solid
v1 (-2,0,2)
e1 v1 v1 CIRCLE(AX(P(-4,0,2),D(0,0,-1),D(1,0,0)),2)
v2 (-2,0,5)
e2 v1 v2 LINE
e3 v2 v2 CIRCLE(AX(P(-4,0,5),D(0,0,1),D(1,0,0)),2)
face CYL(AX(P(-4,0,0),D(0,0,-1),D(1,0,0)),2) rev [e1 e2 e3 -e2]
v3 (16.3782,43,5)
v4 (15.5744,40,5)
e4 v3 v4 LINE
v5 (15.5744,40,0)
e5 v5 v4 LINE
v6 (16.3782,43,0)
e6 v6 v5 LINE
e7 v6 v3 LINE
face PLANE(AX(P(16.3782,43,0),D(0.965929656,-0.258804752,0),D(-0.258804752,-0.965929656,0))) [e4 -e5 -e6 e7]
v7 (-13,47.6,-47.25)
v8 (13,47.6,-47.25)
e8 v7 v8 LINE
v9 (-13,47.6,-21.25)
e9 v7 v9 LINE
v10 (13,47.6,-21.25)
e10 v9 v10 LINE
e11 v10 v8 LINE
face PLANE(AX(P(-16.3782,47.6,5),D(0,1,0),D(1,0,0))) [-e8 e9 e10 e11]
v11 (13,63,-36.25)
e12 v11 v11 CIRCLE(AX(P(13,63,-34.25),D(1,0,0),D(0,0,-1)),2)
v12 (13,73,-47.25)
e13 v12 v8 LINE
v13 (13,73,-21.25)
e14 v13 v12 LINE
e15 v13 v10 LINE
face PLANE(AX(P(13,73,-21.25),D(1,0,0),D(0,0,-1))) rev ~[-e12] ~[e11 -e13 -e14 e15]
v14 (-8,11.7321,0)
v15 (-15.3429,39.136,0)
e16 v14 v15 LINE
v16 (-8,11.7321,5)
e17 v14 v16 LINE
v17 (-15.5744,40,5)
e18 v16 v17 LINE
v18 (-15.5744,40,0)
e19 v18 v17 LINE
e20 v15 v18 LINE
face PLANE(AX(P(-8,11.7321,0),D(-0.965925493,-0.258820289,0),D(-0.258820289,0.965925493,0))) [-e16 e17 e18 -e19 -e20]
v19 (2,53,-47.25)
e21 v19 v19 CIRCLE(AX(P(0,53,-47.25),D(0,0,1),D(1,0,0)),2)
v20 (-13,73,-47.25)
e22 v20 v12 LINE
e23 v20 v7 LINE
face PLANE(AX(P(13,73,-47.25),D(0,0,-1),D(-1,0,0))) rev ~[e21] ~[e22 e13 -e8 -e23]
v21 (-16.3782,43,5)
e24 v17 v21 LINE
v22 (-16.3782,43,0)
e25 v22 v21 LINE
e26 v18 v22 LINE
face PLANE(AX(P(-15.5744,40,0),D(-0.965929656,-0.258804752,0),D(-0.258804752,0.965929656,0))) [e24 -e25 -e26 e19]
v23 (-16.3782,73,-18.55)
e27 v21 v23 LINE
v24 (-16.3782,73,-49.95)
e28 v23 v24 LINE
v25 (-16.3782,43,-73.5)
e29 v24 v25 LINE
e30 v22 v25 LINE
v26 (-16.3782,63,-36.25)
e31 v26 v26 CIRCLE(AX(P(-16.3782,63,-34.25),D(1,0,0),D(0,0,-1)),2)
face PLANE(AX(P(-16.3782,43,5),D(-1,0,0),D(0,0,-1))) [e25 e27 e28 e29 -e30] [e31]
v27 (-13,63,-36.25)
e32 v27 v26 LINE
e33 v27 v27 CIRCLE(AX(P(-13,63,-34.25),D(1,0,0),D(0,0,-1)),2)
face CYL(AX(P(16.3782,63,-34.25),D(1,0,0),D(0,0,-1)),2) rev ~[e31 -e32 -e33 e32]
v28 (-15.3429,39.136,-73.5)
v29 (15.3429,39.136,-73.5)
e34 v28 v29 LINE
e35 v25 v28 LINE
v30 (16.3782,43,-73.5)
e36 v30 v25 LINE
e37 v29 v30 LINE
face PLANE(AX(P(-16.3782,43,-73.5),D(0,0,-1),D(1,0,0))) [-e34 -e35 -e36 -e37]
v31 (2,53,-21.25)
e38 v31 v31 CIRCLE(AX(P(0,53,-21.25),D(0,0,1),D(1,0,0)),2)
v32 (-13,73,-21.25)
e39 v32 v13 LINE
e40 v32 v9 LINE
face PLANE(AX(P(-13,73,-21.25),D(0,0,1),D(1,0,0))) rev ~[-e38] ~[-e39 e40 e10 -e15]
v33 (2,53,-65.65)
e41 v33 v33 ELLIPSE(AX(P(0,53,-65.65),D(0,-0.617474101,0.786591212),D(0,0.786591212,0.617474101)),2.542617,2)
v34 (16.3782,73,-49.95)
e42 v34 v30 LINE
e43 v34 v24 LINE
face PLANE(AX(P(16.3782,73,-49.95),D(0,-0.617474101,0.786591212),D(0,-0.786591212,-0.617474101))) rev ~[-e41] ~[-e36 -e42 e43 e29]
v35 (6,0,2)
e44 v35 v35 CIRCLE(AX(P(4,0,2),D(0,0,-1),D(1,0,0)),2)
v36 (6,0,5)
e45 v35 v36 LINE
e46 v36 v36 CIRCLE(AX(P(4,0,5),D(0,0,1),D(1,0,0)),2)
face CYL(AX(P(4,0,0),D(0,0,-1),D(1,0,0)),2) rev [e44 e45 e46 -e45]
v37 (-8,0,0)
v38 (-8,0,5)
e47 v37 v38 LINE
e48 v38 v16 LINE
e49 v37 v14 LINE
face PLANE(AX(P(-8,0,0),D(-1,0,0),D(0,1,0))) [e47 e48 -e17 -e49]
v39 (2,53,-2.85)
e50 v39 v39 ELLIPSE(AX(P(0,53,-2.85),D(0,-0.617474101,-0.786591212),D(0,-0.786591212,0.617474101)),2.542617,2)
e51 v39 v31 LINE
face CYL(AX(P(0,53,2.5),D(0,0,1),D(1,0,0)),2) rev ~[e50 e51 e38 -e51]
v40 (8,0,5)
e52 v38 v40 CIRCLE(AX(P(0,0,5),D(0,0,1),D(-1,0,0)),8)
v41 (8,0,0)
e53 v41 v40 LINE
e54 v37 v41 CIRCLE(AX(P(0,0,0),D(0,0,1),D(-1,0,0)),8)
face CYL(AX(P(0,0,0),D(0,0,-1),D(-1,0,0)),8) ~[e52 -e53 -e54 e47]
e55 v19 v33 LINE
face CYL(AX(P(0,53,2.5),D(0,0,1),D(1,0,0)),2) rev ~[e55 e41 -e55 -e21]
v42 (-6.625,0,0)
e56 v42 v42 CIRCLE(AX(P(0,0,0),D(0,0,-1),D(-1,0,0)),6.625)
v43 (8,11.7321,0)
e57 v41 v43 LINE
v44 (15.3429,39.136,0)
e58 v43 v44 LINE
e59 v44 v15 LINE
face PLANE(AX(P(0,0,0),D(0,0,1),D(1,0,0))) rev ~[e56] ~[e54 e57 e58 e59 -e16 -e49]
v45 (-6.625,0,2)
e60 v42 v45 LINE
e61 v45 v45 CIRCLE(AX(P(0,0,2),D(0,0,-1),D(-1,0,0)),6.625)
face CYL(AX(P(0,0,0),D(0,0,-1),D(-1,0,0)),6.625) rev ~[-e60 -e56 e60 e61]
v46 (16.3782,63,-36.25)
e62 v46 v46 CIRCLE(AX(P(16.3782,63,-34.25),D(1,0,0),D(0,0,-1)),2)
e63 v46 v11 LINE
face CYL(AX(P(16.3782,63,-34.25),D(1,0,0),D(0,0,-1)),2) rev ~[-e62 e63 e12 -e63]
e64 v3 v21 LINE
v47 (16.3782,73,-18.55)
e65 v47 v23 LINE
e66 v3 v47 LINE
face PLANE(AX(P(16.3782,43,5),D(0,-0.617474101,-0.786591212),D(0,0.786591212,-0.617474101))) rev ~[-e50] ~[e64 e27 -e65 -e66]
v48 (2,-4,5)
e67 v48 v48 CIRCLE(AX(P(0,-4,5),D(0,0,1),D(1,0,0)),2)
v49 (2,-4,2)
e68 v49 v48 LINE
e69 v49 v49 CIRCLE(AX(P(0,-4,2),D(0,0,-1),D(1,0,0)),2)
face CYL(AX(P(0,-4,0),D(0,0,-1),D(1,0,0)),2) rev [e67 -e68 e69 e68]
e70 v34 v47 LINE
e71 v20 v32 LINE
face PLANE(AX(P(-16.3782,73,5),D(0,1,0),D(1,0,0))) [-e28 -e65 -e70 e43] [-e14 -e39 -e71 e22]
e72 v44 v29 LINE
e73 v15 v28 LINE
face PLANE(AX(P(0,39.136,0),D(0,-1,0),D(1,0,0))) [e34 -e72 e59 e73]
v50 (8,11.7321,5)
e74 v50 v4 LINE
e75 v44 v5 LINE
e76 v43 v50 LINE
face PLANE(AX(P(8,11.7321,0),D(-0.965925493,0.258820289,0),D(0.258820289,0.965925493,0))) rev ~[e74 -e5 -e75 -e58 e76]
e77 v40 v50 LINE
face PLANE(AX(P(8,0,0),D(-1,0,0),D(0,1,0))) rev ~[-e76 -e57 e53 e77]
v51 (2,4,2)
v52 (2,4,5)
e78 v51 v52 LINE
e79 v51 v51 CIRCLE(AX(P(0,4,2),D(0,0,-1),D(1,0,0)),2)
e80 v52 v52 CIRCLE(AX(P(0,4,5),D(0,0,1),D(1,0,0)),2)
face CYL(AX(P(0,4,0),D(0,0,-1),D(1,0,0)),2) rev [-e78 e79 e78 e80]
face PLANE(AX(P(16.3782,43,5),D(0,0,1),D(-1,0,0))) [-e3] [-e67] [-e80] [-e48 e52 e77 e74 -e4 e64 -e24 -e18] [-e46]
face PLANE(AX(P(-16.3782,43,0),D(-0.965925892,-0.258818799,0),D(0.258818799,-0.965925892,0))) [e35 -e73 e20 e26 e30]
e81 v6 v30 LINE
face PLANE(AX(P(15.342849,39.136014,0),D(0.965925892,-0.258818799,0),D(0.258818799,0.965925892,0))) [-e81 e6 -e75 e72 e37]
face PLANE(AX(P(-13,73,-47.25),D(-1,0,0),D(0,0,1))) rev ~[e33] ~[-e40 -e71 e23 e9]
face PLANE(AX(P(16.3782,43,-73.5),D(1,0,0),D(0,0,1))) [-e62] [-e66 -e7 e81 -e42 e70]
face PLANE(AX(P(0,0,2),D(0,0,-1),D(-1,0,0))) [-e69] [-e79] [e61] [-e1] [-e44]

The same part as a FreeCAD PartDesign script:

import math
import FreeCAD as App
import Part
import Sketcher

V = App.Vector
Q = App.Units.Quantity


def add_polygon(sketch, points):
    """Adds a closed chain of lines whose ends are joined by coincident constraints."""
    first, n = sketch.GeometryCount, len(points)
    for a, b in zip(points, points[1:] + points[:1]):
        sketch.addGeometry(Part.LineSegment(App.Vector(*a, 0), App.Vector(*b, 0)), False)
    for i in range(n):
        sketch.addConstraint(Sketcher.Constraint("Coincident", first + i, 2, first + (i + 1) % n, 1))

doc = App.newDocument("Part")
body = doc.addObject("PartDesign::Body", "Body")

sketch1 = doc.addObject("Sketcher::SketchObject", "Sketch")
body.addObject(sketch1)
sketch1.AttachmentSupport = (doc.XY_Plane, [""])
sketch1.MapMode = "FlatFace"
sketch1.addGeometry([
    Part.LineSegment(V(8, 0, 0), V(8, 11.7, 0)),
    Part.LineSegment(V(8, 11.7, 0), V(15.6, 40, 0)),
    Part.LineSegment(V(15.6, 40, 0), V(16.4, 43, 0)),
    Part.LineSegment(V(16.4, 43, 0), V(-16.4, 43, 0)),
    Part.LineSegment(V(-16.4, 43, 0), V(-15.6, 40, 0)),
    Part.LineSegment(V(-15.6, 40, 0), V(-8, 11.7, 0)),
    Part.LineSegment(V(-8, 11.7, 0), V(-8, 0, 0)),
    Part.ArcOfCircle(Part.Circle(V(0, 0, 0), V(0, 0, 1), 8), math.radians(180), math.radians(360)),
    Part.Circle(V(-4, 0, 0), V(0, 0, 1), 2),
    Part.Circle(V(0, -4, 0), V(0, 0, 1), 2),
    Part.Circle(V(4, 0, 0), V(0, 0, 1), 2),
    Part.Circle(V(0, 4, 0), V(0, 0, 1), 2),
], False)
sketch1.addConstraint([
    Sketcher.Constraint("Coincident", 0, 2, 1, 1),
    Sketcher.Constraint("Coincident", 1, 2, 2, 1),
    Sketcher.Constraint("Coincident", 2, 2, 3, 1),
    Sketcher.Constraint("Coincident", 3, 2, 4, 1),
    Sketcher.Constraint("Coincident", 4, 2, 5, 1),
    Sketcher.Constraint("Coincident", 5, 2, 6, 1),
    Sketcher.Constraint("Tangent", 6, 2, 7, 1),
    Sketcher.Constraint("Tangent", 7, 2, 0, 1),
    Sketcher.Constraint("Vertical", 0),
    Sketcher.Constraint("Horizontal", 3),
    Sketcher.Constraint("Vertical", 6),
    Sketcher.Constraint("Coincident", 7, 3, -1, 1),
    Sketcher.Constraint("Equal", 8, 9),
    Sketcher.Constraint("Equal", 9, 10),
    Sketcher.Constraint("Equal", 10, 11),
    Sketcher.Constraint("Symmetric", 8, 3, 10, 3, -1, 1),
    Sketcher.Constraint("Symmetric", 9, 3, 11, 3, -1, 1),
    Sketcher.Constraint("Symmetric", 1, 2, 4, 2, -2),
    Sketcher.Constraint("PointOnObject", 8, 3, -1),
    Sketcher.Constraint("PointOnObject", 9, 3, -2),
    Sketcher.Constraint("Parallel", 1, 2),
    Sketcher.Constraint("Parallel", 4, 5),
    Sketcher.Constraint("Horizontal", 0, 2, 5, 2),
    Sketcher.Constraint("Diameter", 8, Q("4 mm")),
    Sketcher.Constraint("DistanceX", 8, 3, -1, 1, Q("4 mm")),
    Sketcher.Constraint("DistanceY", 9, 3, -1, 1, Q("4 mm")),
    Sketcher.Constraint("Radius", 7, Q("8 mm")),
    Sketcher.Constraint("Angle", 1, Q("75 deg")),
    Sketcher.Constraint("DistanceY", -1, 1, 1, 2, Q("40 mm")),
    Sketcher.Constraint("DistanceY", -1, 1, 2, 2, Q("43 mm")),
    Sketcher.Constraint("DistanceY", 0, 1, 0, 2, Q("11.732 mm")),
])
pad1 = doc.addObject("PartDesign::Pad", "Pad")
body.addObject(pad1)
pad1.Profile = sketch1
pad1.Length = 5

sketch2 = doc.addObject("Sketcher::SketchObject", "Sketch001")
body.addObject(sketch2)
sketch2.AttachmentSupport = (doc.XY_Plane, [""])
sketch2.MapMode = "FlatFace"
sketch2.addGeometry(Part.Circle(V(0, 0, 0), V(0, 0, 1), 7), False)
sketch2.addConstraint([
    Sketcher.Constraint("Coincident", 0, 3, -1, 1),
    Sketcher.Constraint("Diameter", 0, Q("13.25 mm")),
])
pocket1 = doc.addObject("PartDesign::Pocket", "Pocket")
body.addObject(pocket1)
pocket1.Profile = sketch2
pocket1.Length = 2
pocket1.Reversed = True

sketch3 = doc.addObject("Sketcher::SketchObject", "Sketch002")
body.addObject(sketch3)
sketch3.AttachmentSupport = (doc.XY_Plane, [""])
sketch3.MapMode = "FlatFace"
add_polygon(sketch3, [(16.4, 43), (15.3, 39.1), (-15.3, 39.1), (-16.4, 43)])
sketch3.addConstraint([
    Sketcher.Constraint("Horizontal", 1),
    Sketcher.Constraint("Horizontal", 3),
    Sketcher.Constraint("Equal", 0, 2),
    Sketcher.Constraint("Angle", 0, Q("-105 deg")),
    Sketcher.Constraint("DistanceY", -1, 1, 2, 2, Q("43 mm")),
    Sketcher.Constraint("DistanceX", 1, 2, 1, 1, Q("30.6858 mm")),
    Sketcher.Constraint("DistanceX", 3, 1, 3, 2, Q("32.7564 mm")),
    Sketcher.Constraint("DistanceX", 1, 2, -1, 1, Q("15.343 mm")),
])
pad2 = doc.addObject("PartDesign::Pad", "Pad001")
body.addObject(pad2)
pad2.Profile = sketch3
pad2.Length = 73.5
pad2.Reversed = True

sketch4 = doc.addObject("Sketcher::SketchObject", "Sketch003")
body.addObject(sketch4)
sketch4.AttachmentSupport = (doc.XZ_Plane, [""])
sketch4.MapMode = "FlatFace"
sketch4.AttachmentOffset = App.Placement(V(0, 0, -43), App.Rotation())
add_polygon(sketch4, [(16, -74), (-16, -74), (-16, 5), (16, 5)])
sketch4.addConstraint([
    Sketcher.Constraint("Horizontal", 0),
    Sketcher.Constraint("Vertical", 1),
    Sketcher.Constraint("Horizontal", 2),
    Sketcher.Constraint("Vertical", 3),
    Sketcher.Constraint("DistanceY", 1, 1, 1, 2, Q("78.5 mm")),
    Sketcher.Constraint("DistanceY", -1, 1, 1, 2, Q("5 mm")),
    Sketcher.Constraint("DistanceX", 0, 2, 0, 1, Q("32.7564 mm")),
    Sketcher.Constraint("DistanceX", 0, 2, -1, 1, Q("16.3782 mm")),
])
pad3 = doc.addObject("PartDesign::Pad", "Pad002")
body.addObject(pad3)
pad3.Profile = sketch4
pad3.Length = 30
pad3.Reversed = True

sketch5 = doc.addObject("Sketcher::SketchObject", "Sketch004")
body.addObject(sketch5)
sketch5.AttachmentSupport = (doc.YZ_Plane, [""])
sketch5.MapMode = "FlatFace"
sketch5.AttachmentOffset = App.Placement(V(0, 0, 16.3782), App.Rotation())
add_polygon(sketch5, [(73, -74), (73, -50), (43, -74)])
add_polygon(sketch5, [(73, -19), (73, 5), (43, 5)])
sketch5.addConstraint([
    Sketcher.Constraint("Vertical", 0),
    Sketcher.Constraint("Horizontal", 2),
    Sketcher.Constraint("Vertical", 3),
    Sketcher.Constraint("Horizontal", 4),
    Sketcher.Constraint("Vertical", 2, 2, 3, 2),
    Sketcher.Constraint("Vertical", 1, 2, 4, 2),
    Sketcher.Constraint("Equal", 0, 3),
    Sketcher.Constraint("DistanceX", 2, 1, 2, 2, Q("30 mm")),
    Sketcher.Constraint("DistanceX", -1, 1, 0, 2, Q("73 mm")),
    Sketcher.Constraint("DistanceY", -1, 1, 3, 2, Q("5 mm")),
    Sketcher.Constraint("DistanceY", 0, 1, 0, 2, Q("23.55 mm")),
    Sketcher.Constraint("DistanceY", 1, 2, -1, 1, Q("73.5 mm")),
])
pocket2 = doc.addObject("PartDesign::Pocket", "Pocket001")
body.addObject(pocket2)
pocket2.Profile = sketch5
pocket2.Length = 32.7564

sketch6 = doc.addObject("Sketcher::SketchObject", "Sketch005")
body.addObject(sketch6)
sketch6.AttachmentSupport = (doc.XZ_Plane, [""])
sketch6.MapMode = "FlatFace"
sketch6.AttachmentOffset = App.Placement(V(0, 0, -73), App.Rotation())
add_polygon(sketch6, [(13, -47), (-13, -47), (-13, -21), (13, -21)])
sketch6.addConstraint([
    Sketcher.Constraint("Horizontal", 0),
    Sketcher.Constraint("Vertical", 1),
    Sketcher.Constraint("Horizontal", 2),
    Sketcher.Constraint("Vertical", 3),
    Sketcher.Constraint("Equal", 2, 1),
    Sketcher.Constraint("DistanceX", 0, 2, 0, 1, Q("26 mm")),
    Sketcher.Constraint("DistanceX", 0, 2, -1, 1, Q("13 mm")),
    Sketcher.Constraint("DistanceY", 0, 2, -1, 1, Q("47.25 mm")),
])
pocket3 = doc.addObject("PartDesign::Pocket", "Pocket002")
body.addObject(pocket3)
pocket3.Profile = sketch6
pocket3.Length = 25.4
pocket3.Reversed = True

sketch7 = doc.addObject("Sketcher::SketchObject", "Sketch006")
body.addObject(sketch7)
sketch7.AttachmentSupport = (doc.XY_Plane, [""])
sketch7.MapMode = "FlatFace"
sketch7.AttachmentOffset = App.Placement(V(0, 0, 2.5), App.Rotation())
sketch7.addGeometry(Part.Circle(V(0, 53, 0), V(0, 0, 1), 2), False)
sketch7.addConstraint([
    Sketcher.Constraint("PointOnObject", 0, 3, -2),
    Sketcher.Constraint("Diameter", 0, Q("4 mm")),
    Sketcher.Constraint("DistanceY", -1, 1, 0, 3, Q("53 mm")),
])
pocket4 = doc.addObject("PartDesign::Pocket", "Pocket003")
body.addObject(pocket4)
pocket4.Profile = sketch7
pocket4.Type = "ThroughAll"

sketch8 = doc.addObject("Sketcher::SketchObject", "Sketch007")
body.addObject(sketch8)
sketch8.AttachmentSupport = (doc.YZ_Plane, [""])
sketch8.MapMode = "FlatFace"
sketch8.AttachmentOffset = App.Placement(V(0, 0, 16.3782), App.Rotation())
sketch8.addGeometry(Part.Circle(V(63, -34.2, 0), V(0, 0, 1), 2), False)
sketch8.addConstraint([
    Sketcher.Constraint("Diameter", 0, Q("4 mm")),
    Sketcher.Constraint("DistanceX", -1, 1, 0, 3, Q("63 mm")),
    Sketcher.Constraint("DistanceY", 0, 3, -1, 1, Q("34.25 mm")),
])
pocket5 = doc.addObject("PartDesign::Pocket", "Pocket004")
body.addObject(pocket5)
pocket5.Profile = sketch8
pocket5.Length = 32.7564

doc.recompute()
